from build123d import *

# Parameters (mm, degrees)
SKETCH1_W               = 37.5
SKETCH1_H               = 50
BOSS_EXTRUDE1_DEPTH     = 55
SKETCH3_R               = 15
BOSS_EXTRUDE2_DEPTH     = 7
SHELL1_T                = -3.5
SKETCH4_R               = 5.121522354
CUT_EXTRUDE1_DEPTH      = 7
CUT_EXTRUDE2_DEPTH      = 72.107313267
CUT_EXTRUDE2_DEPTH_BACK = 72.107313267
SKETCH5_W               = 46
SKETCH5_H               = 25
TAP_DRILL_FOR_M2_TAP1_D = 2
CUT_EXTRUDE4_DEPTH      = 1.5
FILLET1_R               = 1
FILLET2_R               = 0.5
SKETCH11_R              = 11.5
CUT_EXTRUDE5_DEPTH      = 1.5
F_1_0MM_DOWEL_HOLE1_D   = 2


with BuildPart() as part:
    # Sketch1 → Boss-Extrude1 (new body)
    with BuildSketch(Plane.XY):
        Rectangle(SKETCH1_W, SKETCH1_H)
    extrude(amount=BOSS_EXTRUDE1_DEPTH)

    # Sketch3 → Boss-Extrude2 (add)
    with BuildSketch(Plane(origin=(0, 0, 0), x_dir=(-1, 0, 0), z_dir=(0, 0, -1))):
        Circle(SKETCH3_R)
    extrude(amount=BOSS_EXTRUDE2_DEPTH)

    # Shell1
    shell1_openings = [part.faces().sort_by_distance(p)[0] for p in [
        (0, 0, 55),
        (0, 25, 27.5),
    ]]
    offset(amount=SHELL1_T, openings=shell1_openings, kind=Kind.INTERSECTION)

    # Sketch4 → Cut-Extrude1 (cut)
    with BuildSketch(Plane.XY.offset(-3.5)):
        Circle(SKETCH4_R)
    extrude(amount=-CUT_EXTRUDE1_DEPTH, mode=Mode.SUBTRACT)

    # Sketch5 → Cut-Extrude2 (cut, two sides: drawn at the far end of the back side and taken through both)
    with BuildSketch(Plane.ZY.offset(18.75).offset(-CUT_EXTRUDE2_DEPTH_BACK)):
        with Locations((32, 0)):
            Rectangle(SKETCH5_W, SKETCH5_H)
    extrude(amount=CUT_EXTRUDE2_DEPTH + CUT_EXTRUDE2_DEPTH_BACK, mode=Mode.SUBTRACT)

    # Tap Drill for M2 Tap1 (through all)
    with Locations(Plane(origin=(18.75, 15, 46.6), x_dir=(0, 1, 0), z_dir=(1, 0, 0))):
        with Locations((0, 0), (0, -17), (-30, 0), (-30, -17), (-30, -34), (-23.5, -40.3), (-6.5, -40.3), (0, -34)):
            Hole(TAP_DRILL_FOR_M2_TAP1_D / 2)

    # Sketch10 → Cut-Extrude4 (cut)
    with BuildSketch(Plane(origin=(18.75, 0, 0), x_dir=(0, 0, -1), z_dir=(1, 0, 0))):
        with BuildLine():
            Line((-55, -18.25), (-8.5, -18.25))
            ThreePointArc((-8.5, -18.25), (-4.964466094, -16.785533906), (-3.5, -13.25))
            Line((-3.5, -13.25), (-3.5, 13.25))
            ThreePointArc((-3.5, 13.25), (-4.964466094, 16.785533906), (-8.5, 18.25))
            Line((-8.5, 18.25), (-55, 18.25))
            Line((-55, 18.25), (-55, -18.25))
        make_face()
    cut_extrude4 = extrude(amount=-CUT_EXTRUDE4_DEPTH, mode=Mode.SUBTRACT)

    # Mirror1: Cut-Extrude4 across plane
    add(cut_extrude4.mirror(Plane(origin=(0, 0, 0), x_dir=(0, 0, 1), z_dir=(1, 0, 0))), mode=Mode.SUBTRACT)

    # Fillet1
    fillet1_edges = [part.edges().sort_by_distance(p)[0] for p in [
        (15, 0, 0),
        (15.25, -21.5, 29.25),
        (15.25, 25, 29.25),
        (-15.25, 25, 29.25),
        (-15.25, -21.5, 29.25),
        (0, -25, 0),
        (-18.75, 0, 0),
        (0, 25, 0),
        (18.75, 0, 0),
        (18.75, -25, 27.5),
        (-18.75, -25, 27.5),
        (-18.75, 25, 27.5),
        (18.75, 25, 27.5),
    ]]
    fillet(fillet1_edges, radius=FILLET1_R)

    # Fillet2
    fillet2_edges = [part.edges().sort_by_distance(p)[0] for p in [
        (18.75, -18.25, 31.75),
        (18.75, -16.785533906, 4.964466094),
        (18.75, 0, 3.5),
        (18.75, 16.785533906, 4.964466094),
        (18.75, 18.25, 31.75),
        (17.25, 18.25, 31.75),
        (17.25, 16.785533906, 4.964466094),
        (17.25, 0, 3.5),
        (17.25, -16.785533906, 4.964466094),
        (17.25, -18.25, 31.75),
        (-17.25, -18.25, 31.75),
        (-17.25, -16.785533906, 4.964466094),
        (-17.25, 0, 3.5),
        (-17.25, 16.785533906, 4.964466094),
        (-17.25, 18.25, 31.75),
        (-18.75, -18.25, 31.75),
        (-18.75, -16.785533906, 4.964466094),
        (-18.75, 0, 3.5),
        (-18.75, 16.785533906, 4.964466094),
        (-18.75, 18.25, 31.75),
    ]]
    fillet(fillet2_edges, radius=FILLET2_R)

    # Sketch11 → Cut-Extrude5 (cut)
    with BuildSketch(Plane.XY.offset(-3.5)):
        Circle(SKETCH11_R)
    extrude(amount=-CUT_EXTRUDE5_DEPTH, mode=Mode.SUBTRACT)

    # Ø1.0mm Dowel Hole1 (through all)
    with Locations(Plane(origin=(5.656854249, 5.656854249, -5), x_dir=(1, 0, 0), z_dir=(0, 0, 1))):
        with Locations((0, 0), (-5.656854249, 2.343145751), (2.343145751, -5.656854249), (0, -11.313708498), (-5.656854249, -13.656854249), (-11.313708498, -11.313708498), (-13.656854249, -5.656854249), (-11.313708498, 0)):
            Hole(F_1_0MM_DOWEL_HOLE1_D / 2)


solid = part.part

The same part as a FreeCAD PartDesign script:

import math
import FreeCAD as App
import Part
import Sketcher

V = App.Vector
Q = App.Units.Quantity


def edges_at(feature, points):
    """Names of the edges that pass closest to the given points."""
    edges = feature.Shape.Edges
    near = lambda p: min(range(len(edges)), key=lambda i: edges[i].distToShape(Part.Vertex(*p))[0])
    return sorted({f"Edge{near(p) + 1}" for p in points})


def faces_at(feature, points):
    """Names of the faces that lie closest to the given points."""
    faces = feature.Shape.Faces
    near = lambda p: min(range(len(faces)), key=lambda i: faces[i].distToShape(Part.Vertex(*p))[0])
    return sorted({f"Face{near(p) + 1}" for p in points})


def add_polygon(sketch, points):
    """Adds a closed chain of lines whose ends are joined by coincident constraints."""
    first, n = sketch.GeometryCount, len(points)
    for a, b in zip(points, points[1:] + points[:1]):
        sketch.addGeometry(Part.LineSegment(App.Vector(*a, 0), App.Vector(*b, 0)), False)
    for i in range(n):
        sketch.addConstraint(Sketcher.Constraint("Coincident", first + i, 2, first + (i + 1) % n, 1))

doc = App.newDocument("Part")
params = doc.addObject("Spreadsheet::Sheet", "Params")
for row, (alias, value) in enumerate([
    ("sketch1_height", "50 mm"),
    ("sketch1_width", "37.5 mm"),
    ("pad1_length", "55 mm"),
    ("sketch2_diameter", "30 mm"),
    ("pad2_length", "7 mm"),
    ("thickness_wall", "3.5 mm"),
    ("pocket1_length", "7 mm"),
    ("sketch4_width", "25 mm"),
    ("sketch4_height", "46 mm"),
    ("sketch5_diameter", "2 mm"),
    ("hole_diameter", "2 mm"),
    ("sketch6_radius", "5 mm"),
    ("sketch6_width", "26.5 mm"),
    ("sketch6_height", "46.5 mm"),
    ("pocket3_length", "1.5 mm"),
    ("fillet_radius", "1 mm"),
    ("fillet2_radius", "0.5 mm"),
    ("sketch7_diameter", "23 mm"),
    ("pocket4_length", "1.5 mm"),
    ("sketch8_diameter", "2 mm"),
    ("hole2_diameter", "2 mm"),
], start=1):
    params.set(f"A{row}", alias)
    params.set(f"B{row}", "=" + value)
    params.setAlias(f"B{row}", alias)

body = doc.addObject("PartDesign::Body", "Body")

# Sketch on XY plane
sketch1 = doc.addObject("Sketcher::SketchObject", "Sketch")
body.addObject(sketch1)
sketch1.AttachmentSupport = (doc.XY_Plane, [""])
sketch1.MapMode = "FlatFace"
add_polygon(sketch1, [(-18.75, 25), (-18.75, -25), (18.75, -25), (18.75, 25)])  # lines 0-3
sketch1.addConstraint([
    Sketcher.Constraint("Vertical", 0),
    Sketcher.Constraint("Horizontal", 1),
    Sketcher.Constraint("Vertical", 2),
    Sketcher.Constraint("Horizontal", 3),
    Sketcher.Constraint("Symmetric", 0, 2, 2, 2, -1, 1),
    Sketcher.Constraint("DistanceY", 0, 2, 0, 1, Q("50 mm")),
    Sketcher.Constraint("DistanceX", 1, 1, 1, 2, Q("37.5 mm")),
])
sketch1.setExpression("Constraints[9]", "Params.sketch1_height")
sketch1.setExpression("Constraints[10]", "Params.sketch1_width")
pad1 = doc.addObject("PartDesign::Pad", "Pad")
body.addObject(pad1)
pad1.Profile = sketch1
pad1.setExpression("Length", "Params.pad1_length")

# Sketch on XY plane
sketch2 = doc.addObject("Sketcher::SketchObject", "Sketch001")
body.addObject(sketch2)
sketch2.AttachmentSupport = (doc.XY_Plane, [""])
sketch2.MapMode = "FlatFace"
sketch2.addGeometry(Part.Circle(V(0, 0, 0), V(0, 0, 1), 15), False)
sketch2.addConstraint([
    Sketcher.Constraint("Coincident", 0, 3, -1, 1),
    Sketcher.Constraint("Diameter", 0, Q("30 mm")),
])
sketch2.setExpression("Constraints[1]", "Params.sketch2_diameter")
pad2 = doc.addObject("PartDesign::Pad", "Pad001")
body.addObject(pad2)
pad2.Profile = sketch2
pad2.setExpression("Length", "Params.pad2_length")
pad2.Reversed = True
doc.recompute()

thickness = doc.addObject("PartDesign::Thickness", "Thickness")
body.addObject(thickness)
thickness.Base = (pad2, faces_at(pad2, [(0, 0, 55), (0, 25, 27.5)]))
thickness.setExpression("Value", "Params.thickness_wall")
thickness.Reversed = True
thickness.Join = "Intersection"

# Sketch on XY plane
sketch3 = doc.addObject("Sketcher::SketchObject", "Sketch002")
body.addObject(sketch3)
sketch3.AttachmentSupport = (doc.XY_Plane, [""])
sketch3.MapMode = "FlatFace"
sketch3.AttachmentOffset = App.Placement(V(0, 0, -3.5), App.Rotation())
sketch3.addGeometry(Part.Circle(V(0, 0, 0), V(0, 0, 1), 5.121522), False)
sketch3.addConstraint([
    Sketcher.Constraint("Coincident", 0, 3, -1, 1),
    Sketcher.Constraint("Diameter", 0, Q("10.243045 mm")),
])
pocket1 = doc.addObject("PartDesign::Pocket", "Pocket")
body.addObject(pocket1)
pocket1.Profile = sketch3
pocket1.setExpression("Length", "Params.pocket1_length")

# Sketch on YZ plane
sketch4 = doc.addObject("Sketcher::SketchObject", "Sketch003")
body.addObject(sketch4)
sketch4.AttachmentSupport = (doc.YZ_Plane, [""])
sketch4.MapMode = "FlatFace"
sketch4.AttachmentOffset = App.Placement(V(0, 0, -18.75), App.Rotation())
add_polygon(sketch4, [(12.5, 9), (-12.5, 9), (-12.5, 55), (12.5, 55)])  # lines 0-3
sketch4.addConstraint([
    Sketcher.Constraint("Horizontal", 0),
    Sketcher.Constraint("Vertical", 1),
    Sketcher.Constraint("Horizontal", 2),
    Sketcher.Constraint("Vertical", 3),
    Sketcher.Constraint("DistanceX", 0, 2, 0, 1, Q("25 mm")),
    Sketcher.Constraint("DistanceY", 1, 1, 1, 2, Q("46 mm")),
    Sketcher.Constraint("DistanceY", -1, 1, 0, 2, Q("9 mm")),
    Sketcher.Constraint("DistanceX", 0, 2, -1, 1, Q("12.5 mm")),
])
sketch4.setExpression("Constraints[8]", "Params.sketch4_width")
sketch4.setExpression("Constraints[9]", "Params.sketch4_height")
pocket2 = doc.addObject("PartDesign::Pocket", "Pocket001")
body.addObject(pocket2)
pocket2.Profile = sketch4
pocket2.Type = "ThroughAll"
pocket2.Midplane = True

# Sketch on YZ plane
sketch5 = doc.addObject("Sketcher::SketchObject", "Sketch004")
body.addObject(sketch5)
sketch5.AttachmentSupport = (doc.YZ_Plane, [""])
sketch5.MapMode = "FlatFace"
sketch5.AttachmentOffset = App.Placement(V(0, 0, 18.75), App.Rotation())
sketch5.addGeometry([
    Part.Circle(V(15, 46.6, 0), V(0, 0, 1), 1),  # 0
    Part.Circle(V(15, 29.6, 0), V(0, 0, 1), 1),  # 1
    Part.Circle(V(-15, 46.6, 0), V(0, 0, 1), 1),  # 2
    Part.Circle(V(-15, 29.6, 0), V(0, 0, 1), 1),  # 3
    Part.Circle(V(-15, 12.6, 0), V(0, 0, 1), 1),  # 4
    Part.Circle(V(-8.5, 6.3, 0), V(0, 0, 1), 1),  # 5
    Part.Circle(V(8.5, 6.3, 0), V(0, 0, 1), 1),  # 6
    Part.Circle(V(15, 12.6, 0), V(0, 0, 1), 1),  # 7
], False)
sketch5.addConstraint([
    Sketcher.Constraint("Equal", 0, 1),
    Sketcher.Constraint("Equal", 1, 2),
    Sketcher.Constraint("Equal", 2, 3),
    Sketcher.Constraint("Equal", 3, 4),
    Sketcher.Constraint("Equal", 4, 5),
    Sketcher.Constraint("Equal", 5, 6),
    Sketcher.Constraint("Equal", 6, 7),
    Sketcher.Constraint("Symmetric", 0, 3, 2, 3, -2),
    Sketcher.Constraint("Symmetric", 1, 3, 3, 3, -2),
    Sketcher.Constraint("Symmetric", 5, 3, 6, 3, -2),
    Sketcher.Constraint("Symmetric", 4, 3, 7, 3, -2),
    Sketcher.Constraint("Vertical", 0, 3, 1, 3),
    Sketcher.Constraint("Vertical", 3, 3, 4, 3),
    Sketcher.Constraint("Diameter", 0, Q("2 mm")),
    Sketcher.Constraint("DistanceX", -1, 1, 0, 3, Q("15 mm")),
    Sketcher.Constraint("DistanceY", 1, 3, 0, 3, Q("17 mm")),
    Sketcher.Constraint("DistanceY", 4, 3, 3, 3, Q("17 mm")),
    Sketcher.Constraint("DistanceX", 5, 3, 6, 3, Q("17 mm")),
    Sketcher.Constraint("DistanceY", -1, 1, 0, 3, Q("46.6 mm")),
    Sketcher.Constraint("DistanceY", -1, 1, 5, 3, Q("6.3 mm")),
])
sketch5.setExpression("Constraints[13]", "Params.sketch5_diameter")
doc.recompute()
hole = doc.addObject("PartDesign::Hole", "Hole")
body.addObject(hole)
hole.Profile = sketch5
hole.ThreadType = "None"
hole.setExpression("Diameter", "Params.hole_diameter")
hole.DepthType = "ThroughAll"

# Sketch on YZ plane
sketch6 = doc.addObject("Sketcher::SketchObject", "Sketch005")
body.addObject(sketch6)
sketch6.AttachmentSupport = (doc.YZ_Plane, [""])
sketch6.MapMode = "FlatFace"
sketch6.AttachmentOffset = App.Placement(V(0, 0, 18.75), App.Rotation())
sketch6.addGeometry([
    Part.LineSegment(V(-18.25, 55, 0), V(-18.25, 8.5, 0)),  # 0
    Part.ArcOfCircle(Part.Circle(V(-13.25, 8.5, 0), V(0, 0, 1), 5), math.radians(180), math.radians(270)),  # 1
    Part.LineSegment(V(-13.25, 3.5, 0), V(13.25, 3.5, 0)),  # 2
    Part.ArcOfCircle(Part.Circle(V(13.25, 8.5, 0), V(0, 0, 1), 5), math.radians(-90), math.radians(0)),  # 3
    Part.LineSegment(V(18.25, 8.5, 0), V(18.25, 55, 0)),  # 4
    Part.LineSegment(V(18.25, 55, 0), V(-18.25, 55, 0)),  # 5
], False)
sketch6.addConstraint([
    Sketcher.Constraint("Tangent", 0, 2, 1, 1),
    Sketcher.Constraint("Tangent", 1, 2, 2, 1),
    Sketcher.Constraint("Tangent", 2, 2, 3, 1),
    Sketcher.Constraint("Tangent", 3, 2, 4, 1),
    Sketcher.Constraint("Coincident", 4, 2, 5, 1),
    Sketcher.Constraint("Coincident", 5, 2, 0, 1),
    Sketcher.Constraint("Vertical", 0),
    Sketcher.Constraint("Horizontal", 2),
    Sketcher.Constraint("Vertical", 4),
    Sketcher.Constraint("Horizontal", 5),
    Sketcher.Constraint("Equal", 1, 3),
    Sketcher.Constraint("Radius", 1, Q("5 mm")),
    Sketcher.Constraint("DistanceX", 2, 1, 2, 2, Q("26.5 mm")),
    Sketcher.Constraint("DistanceY", 0, 2, 0, 1, Q("46.5 mm")),
    Sketcher.Constraint("DistanceY", -1, 1, 4, 2, Q("55 mm")),
    Sketcher.Constraint("DistanceX", 1, 3, -1, 1, Q("13.25 mm")),
])
sketch6.setExpression("Constraints[11]", "Params.sketch6_radius")
sketch6.setExpression("Constraints[12]", "Params.sketch6_width")
sketch6.setExpression("Constraints[13]", "Params.sketch6_height")
pocket3 = doc.addObject("PartDesign::Pocket", "Pocket002")
body.addObject(pocket3)
pocket3.Profile = sketch6
pocket3.setExpression("Length", "Params.pocket3_length")
doc.recompute()

mirrored = doc.addObject("PartDesign::Mirrored", "Mirrored")
body.addObject(mirrored)
mirrored.Originals = [pocket3]
mirrored.MirrorPlane = (doc.YZ_Plane, [""])
body.Tip = mirrored
doc.recompute()

fillet = doc.addObject("PartDesign::Fillet", "Fillet")
body.addObject(fillet)
fillet.Base = (mirrored, edges_at(mirrored, [
    (15, 0, 0),
    (15.25, -21.5, 29.25),
    (15.25, 25, 29.25),
    (-15.25, 25, 29.25),
    (-15.25, -21.5, 29.25),
    (0, -25, 0),
    (-18.75, 0, 0),
    (0, 25, 0),
    (18.75, 0, 0),
    (18.75, -25, 27.5),
    (-18.75, -25, 27.5),
    (-18.75, 25, 27.5),
    (18.75, 25, 27.5),
]))
fillet.setExpression("Radius", "Params.fillet_radius")
doc.recompute()

fillet2 = doc.addObject("PartDesign::Fillet", "Fillet001")
body.addObject(fillet2)
fillet2.Base = (fillet, edges_at(fillet, [
    (18.75, -18.25, 31.75),
    (18.75, -16.786, 4.964),
    (18.75, 0, 3.5),
    (18.75, 16.786, 4.964),
    (18.75, 18.25, 31.75),
    (17.25, 18.25, 31.75),
    (17.25, 16.786, 4.964),
    (17.25, 0, 3.5),
    (17.25, -16.786, 4.964),
    (17.25, -18.25, 31.75),
    (-17.25, -18.25, 31.75),
    (-17.25, -16.786, 4.964),
    (-17.25, 0, 3.5),
    (-17.25, 16.786, 4.964),
    (-17.25, 18.25, 31.75),
    (-18.75, -18.25, 31.75),
    (-18.75, -16.786, 4.964),
    (-18.75, 0, 3.5),
    (-18.75, 16.786, 4.964),
    (-18.75, 18.25, 31.75),
]))
fillet2.setExpression("Radius", "Params.fillet2_radius")

# Sketch on XY plane
sketch7 = doc.addObject("Sketcher::SketchObject", "Sketch006")
body.addObject(sketch7)
sketch7.AttachmentSupport = (doc.XY_Plane, [""])
sketch7.MapMode = "FlatFace"
sketch7.AttachmentOffset = App.Placement(V(0, 0, -3.5), App.Rotation())
sketch7.addGeometry(Part.Circle(V(0, 0, 0), V(0, 0, 1), 11.5), False)
sketch7.addConstraint([
    Sketcher.Constraint("Coincident", 0, 3, -1, 1),
    Sketcher.Constraint("Diameter", 0, Q("23 mm")),
])
sketch7.setExpression("Constraints[1]", "Params.sketch7_diameter")
pocket4 = doc.addObject("PartDesign::Pocket", "Pocket003")
body.addObject(pocket4)
pocket4.Profile = sketch7
pocket4.setExpression("Length", "Params.pocket4_length")

# Sketch on XY plane
sketch8 = doc.addObject("Sketcher::SketchObject", "Sketch007")
body.addObject(sketch8)
sketch8.AttachmentSupport = (doc.XY_Plane, [""])
sketch8.MapMode = "FlatFace"
sketch8.AttachmentOffset = App.Placement(V(0, 0, -5), App.Rotation())
sketch8.addGeometry([
    Part.Circle(V(5.656854, 5.656854, 0), V(0, 0, 1), 1),  # 0
    Part.Circle(V(0, 8, 0), V(0, 0, 1), 1),  # 1
    Part.Circle(V(8, 0, 0), V(0, 0, 1), 1),  # 2
    Part.Circle(V(5.656854, -5.656854, 0), V(0, 0, 1), 1),  # 3
    Part.Circle(V(0, -8, 0), V(0, 0, 1), 1),  # 4
    Part.Circle(V(-5.656854, -5.656854, 0), V(0, 0, 1), 1),  # 5
    Part.Circle(V(-8, 0, 0), V(0, 0, 1), 1),  # 6
    Part.Circle(V(-5.656854, 5.656854, 0), V(0, 0, 1), 1),  # 7
], False)
sketch8.addConstraint([
    Sketcher.Constraint("Equal", 0, 1),
    Sketcher.Constraint("Equal", 1, 2),
    Sketcher.Constraint("Equal", 2, 3),
    Sketcher.Constraint("Equal", 3, 4),
    Sketcher.Constraint("Equal", 4, 5),
    Sketcher.Constraint("Equal", 5, 6),
    Sketcher.Constraint("Equal", 6, 7),
    Sketcher.Constraint("Symmetric", 1, 3, 4, 3, -1, 1),
    Sketcher.Constraint("Symmetric", 0, 3, 5, 3, -1, 1),
    Sketcher.Constraint("Symmetric", 2, 3, 6, 3, -1, 1),
    Sketcher.Constraint("Symmetric", 3, 3, 7, 3, -1, 1),
    Sketcher.Constraint("Symmetric", 3, 3, 5, 3, -2),
    Sketcher.Constraint("PointOnObject", 1, 3, -2),
    Sketcher.Constraint("PointOnObject", 2, 3, -1),
    Sketcher.Constraint("Diameter", 0, Q("2 mm")),
    Sketcher.Constraint("DistanceY", -1, 1, 1, 3, Q("8 mm")),
    Sketcher.Constraint("DistanceX", -1, 1, 2, 3, Q("8 mm")),
    Sketcher.Constraint("DistanceY", 3, 3, 0, 3, Q("11.313708 mm")),
    Sketcher.Constraint("DistanceX", 5, 3, 3, 3, Q("11.313708 mm")),
])
sketch8.setExpression("Constraints[14]", "Params.sketch8_diameter")
doc.recompute()
hole2 = doc.addObject("PartDesign::Hole", "Hole001")
body.addObject(hole2)
hole2.Profile = sketch8
hole2.ThreadType = "None"
hole2.setExpression("Diameter", "Params.hole2_diameter")
hole2.DepthType = "ThroughAll"

doc.recompute()
